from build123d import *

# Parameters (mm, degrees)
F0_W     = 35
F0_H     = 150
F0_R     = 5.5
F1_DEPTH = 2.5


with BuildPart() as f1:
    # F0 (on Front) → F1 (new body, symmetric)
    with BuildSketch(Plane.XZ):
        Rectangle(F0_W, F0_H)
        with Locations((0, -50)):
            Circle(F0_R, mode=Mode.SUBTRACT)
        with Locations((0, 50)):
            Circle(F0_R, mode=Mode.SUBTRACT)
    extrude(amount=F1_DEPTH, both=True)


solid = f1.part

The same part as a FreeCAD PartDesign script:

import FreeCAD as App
import Part
import Sketcher

V = App.Vector


def add_polygon(sketch, points):
    """Adds a closed chain of lines whose ends are joined by coincident constraints."""
    first, n = sketch.GeometryCount, len(points)
    for a, b in zip(points, points[1:] + points[:1]):
        sketch.addGeometry(Part.LineSegment(App.Vector(*a, 0), App.Vector(*b, 0)), False)
    for i in range(n):
        sketch.addConstraint(Sketcher.Constraint("Coincident", first + i, 2, first + (i + 1) % n, 1))

doc = App.newDocument("Part")
body = doc.addObject("PartDesign::Body", "Body")

# Sketch on XZ plane
sketch1 = body.newObject("Sketcher::SketchObject", "Sketch")
sketch1.AttachmentSupport = (doc.getObject("XZ_Plane"), [""])
sketch1.MapMode = "FlatFace"
add_polygon(sketch1, [(-18, 75), (-18, -75), (18, -75), (18, 75)])  # lines 0-3
sketch1.addGeometry(Part.Circle(V(0, -50, 0), V(0, 0, 1), 6), False)  # 4
sketch1.addGeometry(Part.Circle(V(0, 50, 0), V(0, 0, 1), 6), False)  # 5
sketch1.addConstraint([
    Sketcher.Constraint("Vertical", 0),
    Sketcher.Constraint("Horizontal", 1),
    Sketcher.Constraint("Vertical", 2),
    Sketcher.Constraint("Horizontal", 3),
    Sketcher.Constraint("Equal", 4, 5),
    Sketcher.Constraint("Symmetric", 4, 3, 5, 3, -1, 1),
    Sketcher.Constraint("Symmetric", 0, 2, 2, 2, -1, 1),
    Sketcher.Constraint("PointOnObject", 4, 3, -2),
    Sketcher.Constraint("Diameter", 4, 11.0),
    Sketcher.Constraint("DistanceX", 1, 1, 1, 2, 35.0),
    Sketcher.Constraint("DistanceY", 0, 2, 0, 1, 150.0),
    Sketcher.Constraint("DistanceY", 4, 3, -1, 1, 50.0),
])
pad1 = body.newObject("PartDesign::Pad", "Pad")
pad1.Profile = sketch1
pad1.Length = 5
pad1.Midplane = True

doc.recompute()
